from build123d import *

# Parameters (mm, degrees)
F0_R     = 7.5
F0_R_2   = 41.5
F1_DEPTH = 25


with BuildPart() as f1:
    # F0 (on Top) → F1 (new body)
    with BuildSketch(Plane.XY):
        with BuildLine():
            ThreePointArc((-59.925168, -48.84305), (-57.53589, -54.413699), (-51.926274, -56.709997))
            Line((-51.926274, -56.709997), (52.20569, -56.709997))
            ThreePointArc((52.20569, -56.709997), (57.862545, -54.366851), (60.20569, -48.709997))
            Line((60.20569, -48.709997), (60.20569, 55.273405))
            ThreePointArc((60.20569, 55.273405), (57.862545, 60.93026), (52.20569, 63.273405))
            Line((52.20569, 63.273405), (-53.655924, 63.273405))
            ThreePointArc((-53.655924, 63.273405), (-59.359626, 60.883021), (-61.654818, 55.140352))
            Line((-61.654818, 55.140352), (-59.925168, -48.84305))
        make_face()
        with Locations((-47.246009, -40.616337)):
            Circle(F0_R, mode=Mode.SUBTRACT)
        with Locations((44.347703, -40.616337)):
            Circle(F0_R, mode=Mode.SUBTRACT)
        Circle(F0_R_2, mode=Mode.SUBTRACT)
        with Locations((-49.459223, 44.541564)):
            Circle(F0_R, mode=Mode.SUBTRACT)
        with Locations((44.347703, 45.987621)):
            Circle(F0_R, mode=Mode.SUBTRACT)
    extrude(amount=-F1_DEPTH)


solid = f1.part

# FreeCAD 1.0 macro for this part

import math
import FreeCAD as App
import Part
import Sketcher

V = App.Vector

doc = App.newDocument("Part")
params = doc.addObject("Spreadsheet::Sheet", "Params")
for row, (alias, value) in enumerate([
    ("sketch1_diameter", "15 mm"),
    ("sketch1_diameter2", "83 mm"),
    ("sketch1_radius", "8 mm"),
    ("pad1_length", "25 mm"),
], start=1):
    params.set(f"A{row}", alias)
    params.set(f"B{row}", "=" + value)
    params.setAlias(f"B{row}", alias)

body = doc.addObject("PartDesign::Body", "Body")

# Sketch on XY plane
sketch1 = body.newObject("Sketcher::SketchObject", "Sketch")
sketch1.AttachmentSupport = (doc.getObject("XY_Plane"), [""])
sketch1.MapMode = "FlatFace"
sketch1.addGeometry([
    Part.ArcOfCircle(Part.Circle(V(-51.926275, -48.709997, 0), V(0, 0, 1), 8), math.radians(-179.047037), math.radians(-89.999994)),  # 0
    Part.LineSegment(V(-51.926274, -56.709997, 0), V(52.20569, -56.709997, 0)),  # 1
    Part.ArcOfCircle(Part.Circle(V(52.205691, -48.709998, 0), V(0, 0, 1), 7.999999), math.radians(-90.000006), math.radians(0.000006)),  # 2
    Part.LineSegment(V(60.20569, -48.709997, 0), V(60.20569, 55.273405, 0)),  # 3
    Part.ArcOfCircle(Part.Circle(V(52.205693, 55.273408, 0), V(0, 0, 1), 7.999997), math.radians(-0.000018), math.radians(90.000018)),  # 4
    Part.LineSegment(V(52.20569, 63.273405, 0), V(-53.655924, 63.273405, 0)),  # 5
    Part.ArcOfCircle(Part.Circle(V(-53.655925, 55.273405, 0), V(0, 0, 1), 8), math.radians(89.999994), math.radians(180.952968)),  # 6
    Part.LineSegment(V(-61.654818, 55.140352, 0), V(-59.925168, -48.84305, 0)),  # 7
    Part.Circle(V(-47.246009, -40.616337, 0), V(0, 0, 1), 7.5),  # 8
    Part.Circle(V(44.347703, -40.616337, 0), V(0, 0, 1), 7.5),  # 9
    Part.Circle(V(0, 0, 0), V(0, 0, 1), 41.5),  # 10
    Part.Circle(V(-49.459223, 44.541564, 0), V(0, 0, 1), 7.5),  # 11
    Part.Circle(V(44.347703, 45.987621, 0), V(0, 0, 1), 7.5),  # 12
], False)
sketch1.addConstraint([
    Sketcher.Constraint("Tangent", 0, 2, 1, 1),
    Sketcher.Constraint("Tangent", 1, 2, 2, 1),
    Sketcher.Constraint("Tangent", 2, 2, 3, 1),
    Sketcher.Constraint("Tangent", 3, 2, 4, 1),
    Sketcher.Constraint("Tangent", 4, 2, 5, 1),
    Sketcher.Constraint("Tangent", 5, 2, 6, 1),
    Sketcher.Constraint("Tangent", 6, 2, 7, 1),
    Sketcher.Constraint("Tangent", 7, 2, 0, 1),
    Sketcher.Constraint("Horizontal", 1),
    Sketcher.Constraint("Vertical", 3),
    Sketcher.Constraint("Horizontal", 5),
    Sketcher.Constraint("Coincident", 10, 3, -1, 1),
    Sketcher.Constraint("Equal", 0, 2),
    Sketcher.Constraint("Equal", 2, 4),
    Sketcher.Constraint("Equal", 2, 6),
    Sketcher.Constraint("Equal", 8, 9),
    Sketcher.Constraint("Equal", 9, 11),
    Sketcher.Constraint("Equal", 11, 12),
    Sketcher.Constraint("Horizontal", 8, 3, 9, 3),
    Sketcher.Constraint("Vertical", 9, 3, 12, 3),
    Sketcher.Constraint("Diameter", 8, 15.0),
    Sketcher.Constraint("Diameter", 10, 83.0),
    Sketcher.Constraint("Radius", 0, 8.0),
    Sketcher.Constraint("DistanceY", 3, 1, 3, 2, 103.983402),
    Sketcher.Constraint("DistanceX", 8, 3, 2, 3, 99.4517),
    Sketcher.Constraint("DistanceX", 6, 3, 11, 3, 4.196702),
    Sketcher.Constraint("DistanceY", 8, 3, 11, 3, 85.157901),
    Sketcher.Constraint("DistanceX", 1, 1, 1, 2, 104.131964),
    Sketcher.Constraint("DistanceX", 5, 2, 5, 1, 105.861614),
    Sketcher.Constraint("DistanceX", -1, 1, 2, 3, 52.205691),
    Sketcher.Constraint("DistanceY", -1, 1, 12, 3, 45.987621),
    Sketcher.Constraint("DistanceY", -1, 1, 6, 2, 55.140352),
    Sketcher.Constraint("DistanceY", 0, 3, 8, 3, 8.09366),
    Sketcher.Constraint("DistanceX", 9, 3, 4, 3, 7.85799),
])
sketch1.setExpression("Constraints[20]", "Params.sketch1_diameter")
sketch1.setExpression("Constraints[21]", "Params.sketch1_diameter2")
sketch1.setExpression("Constraints[22]", "Params.sketch1_radius")
pad1 = body.newObject("PartDesign::Pad", "Pad")
pad1.Profile = sketch1
pad1.setExpression("Length", "Params.pad1_length")
pad1.Reversed = True

doc.recompute()
